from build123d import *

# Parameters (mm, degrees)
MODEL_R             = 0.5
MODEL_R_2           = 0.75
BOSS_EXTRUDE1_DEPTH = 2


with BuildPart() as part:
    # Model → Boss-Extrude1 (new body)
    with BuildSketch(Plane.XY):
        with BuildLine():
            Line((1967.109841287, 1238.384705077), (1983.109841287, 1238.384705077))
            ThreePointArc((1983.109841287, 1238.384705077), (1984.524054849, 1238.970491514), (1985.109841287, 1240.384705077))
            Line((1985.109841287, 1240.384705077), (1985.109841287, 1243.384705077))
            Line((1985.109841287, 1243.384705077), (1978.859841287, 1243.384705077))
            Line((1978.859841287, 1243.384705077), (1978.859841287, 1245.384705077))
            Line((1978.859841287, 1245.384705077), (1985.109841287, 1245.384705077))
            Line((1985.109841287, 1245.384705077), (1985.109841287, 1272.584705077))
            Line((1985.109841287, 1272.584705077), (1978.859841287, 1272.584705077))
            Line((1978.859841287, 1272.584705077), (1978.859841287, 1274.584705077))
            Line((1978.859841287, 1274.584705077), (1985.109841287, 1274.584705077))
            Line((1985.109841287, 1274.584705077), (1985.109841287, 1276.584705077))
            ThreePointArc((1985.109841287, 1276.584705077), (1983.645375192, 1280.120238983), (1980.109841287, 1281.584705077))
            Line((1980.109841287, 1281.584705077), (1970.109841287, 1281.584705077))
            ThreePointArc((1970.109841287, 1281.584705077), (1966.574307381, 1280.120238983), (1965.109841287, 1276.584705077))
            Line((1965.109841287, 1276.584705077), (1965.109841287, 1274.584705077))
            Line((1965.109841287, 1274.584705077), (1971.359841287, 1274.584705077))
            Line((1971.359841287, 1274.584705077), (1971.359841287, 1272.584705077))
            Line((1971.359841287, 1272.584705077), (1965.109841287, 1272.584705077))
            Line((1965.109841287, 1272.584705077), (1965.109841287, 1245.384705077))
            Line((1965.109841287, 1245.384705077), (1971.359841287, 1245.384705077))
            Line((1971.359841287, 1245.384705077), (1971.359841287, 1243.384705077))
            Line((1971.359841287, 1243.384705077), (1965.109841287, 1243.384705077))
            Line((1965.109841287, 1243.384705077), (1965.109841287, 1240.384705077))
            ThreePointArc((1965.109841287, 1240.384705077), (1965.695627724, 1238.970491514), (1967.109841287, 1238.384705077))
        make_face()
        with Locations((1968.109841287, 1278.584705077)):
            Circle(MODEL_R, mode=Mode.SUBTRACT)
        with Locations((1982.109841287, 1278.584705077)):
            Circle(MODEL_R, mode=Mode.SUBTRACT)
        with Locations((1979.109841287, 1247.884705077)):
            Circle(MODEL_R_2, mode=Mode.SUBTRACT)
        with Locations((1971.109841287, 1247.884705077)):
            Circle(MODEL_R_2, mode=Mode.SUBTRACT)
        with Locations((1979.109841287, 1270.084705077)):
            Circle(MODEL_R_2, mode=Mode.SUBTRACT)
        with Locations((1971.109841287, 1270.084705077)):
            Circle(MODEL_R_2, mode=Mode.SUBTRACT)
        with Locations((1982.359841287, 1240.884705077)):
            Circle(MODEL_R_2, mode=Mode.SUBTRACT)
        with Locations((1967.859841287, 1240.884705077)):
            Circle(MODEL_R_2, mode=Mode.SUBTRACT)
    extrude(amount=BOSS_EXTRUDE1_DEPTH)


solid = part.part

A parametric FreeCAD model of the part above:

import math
import FreeCAD as App
import Part
import Sketcher

V = App.Vector
Q = App.Units.Quantity

doc = App.newDocument("Part")
body = doc.addObject("PartDesign::Body", "Body")

sketch1 = doc.addObject("Sketcher::SketchObject", "Sketch")
body.addObject(sketch1)
sketch1.AttachmentSupport = (doc.XY_Plane, [""])
sketch1.MapMode = "FlatFace"
sketch1.addGeometry([
    Part.LineSegment(V(1967.1, 1238.4, 0), V(1983.1, 1238.4, 0)),
    Part.ArcOfCircle(Part.Circle(V(1983.1, 1240.4, 0), V(0, 0, 1), 2), math.radians(-90), math.radians(0)),
    Part.LineSegment(V(1985.1, 1240.4, 0), V(1985.1, 1243.4, 0)),
    Part.LineSegment(V(1985.1, 1243.4, 0), V(1978.9, 1243.4, 0)),
    Part.LineSegment(V(1978.9, 1243.4, 0), V(1978.9, 1245.4, 0)),
    Part.LineSegment(V(1978.9, 1245.4, 0), V(1985.1, 1245.4, 0)),
    Part.LineSegment(V(1985.1, 1245.4, 0), V(1985.1, 1272.6, 0)),
    Part.LineSegment(V(1985.1, 1272.6, 0), V(1978.9, 1272.6, 0)),
    Part.LineSegment(V(1978.9, 1272.6, 0), V(1978.9, 1274.6, 0)),
    Part.LineSegment(V(1978.9, 1274.6, 0), V(1985.1, 1274.6, 0)),
    Part.LineSegment(V(1985.1, 1274.6, 0), V(1985.1, 1276.6, 0)),
    Part.ArcOfCircle(Part.Circle(V(1980.1, 1276.6, 0), V(0, 0, 1), 5), math.radians(0), math.radians(90)),
    Part.LineSegment(V(1980.1, 1281.6, 0), V(1970.1, 1281.6, 0)),
    Part.ArcOfCircle(Part.Circle(V(1970.1, 1276.6, 0), V(0, 0, 1), 5), math.radians(90), math.radians(180)),
    Part.LineSegment(V(1965.1, 1276.6, 0), V(1965.1, 1274.6, 0)),
    Part.LineSegment(V(1965.1, 1274.6, 0), V(1971.4, 1274.6, 0)),
    Part.LineSegment(V(1971.4, 1274.6, 0), V(1971.4, 1272.6, 0)),
    Part.LineSegment(V(1971.4, 1272.6, 0), V(1965.1, 1272.6, 0)),
    Part.LineSegment(V(1965.1, 1272.6, 0), V(1965.1, 1245.4, 0)),
    Part.LineSegment(V(1965.1, 1245.4, 0), V(1971.4, 1245.4, 0)),
    Part.LineSegment(V(1971.4, 1245.4, 0), V(1971.4, 1243.4, 0)),
    Part.LineSegment(V(1971.4, 1243.4, 0), V(1965.1, 1243.4, 0)),
    Part.LineSegment(V(1965.1, 1243.4, 0), V(1965.1, 1240.4, 0)),
    Part.ArcOfCircle(Part.Circle(V(1967.1, 1240.4, 0), V(0, 0, 1), 2), math.radians(180), math.radians(270)),
    Part.Circle(V(1967.9, 1240.9, 0), V(0, 0, 1), 0.8),
    Part.Circle(V(1971.1, 1247.9, 0), V(0, 0, 1), 0.8),
    Part.Circle(V(1982.4, 1240.9, 0), V(0, 0, 1), 0.8),
    Part.Circle(V(1979.1, 1247.9, 0), V(0, 0, 1), 0.8),
    Part.Circle(V(1968.1, 1278.6, 0), V(0, 0, 1), 0.5),
    Part.Circle(V(1971.1, 1270.1, 0), V(0, 0, 1), 0.8),
    Part.Circle(V(1979.1, 1270.1, 0), V(0, 0, 1), 0.8),
    Part.Circle(V(1982.1, 1278.6, 0), V(0, 0, 1), 0.5),
], False)
sketch1.addConstraint([
    Sketcher.Constraint("Tangent", 0, 2, 1, 1),
    Sketcher.Constraint("Tangent", 1, 2, 2, 1),
    Sketcher.Constraint("Coincident", 2, 2, 3, 1),
    Sketcher.Constraint("Coincident", 3, 2, 4, 1),
    Sketcher.Constraint("Coincident", 4, 2, 5, 1),
    Sketcher.Constraint("Coincident", 5, 2, 6, 1),
    Sketcher.Constraint("Coincident", 6, 2, 7, 1),
    Sketcher.Constraint("Coincident", 7, 2, 8, 1),
    Sketcher.Constraint("Coincident", 8, 2, 9, 1),
    Sketcher.Constraint("Coincident", 9, 2, 10, 1),
    Sketcher.Constraint("Tangent", 10, 2, 11, 1),
    Sketcher.Constraint("Tangent", 11, 2, 12, 1),
    Sketcher.Constraint("Tangent", 12, 2, 13, 1),
    Sketcher.Constraint("Tangent", 13, 2, 14, 1),
    Sketcher.Constraint("Coincident", 14, 2, 15, 1),
    Sketcher.Constraint("Coincident", 15, 2, 16, 1),
    Sketcher.Constraint("Coincident", 16, 2, 17, 1),
    Sketcher.Constraint("Coincident", 17, 2, 18, 1),
    Sketcher.Constraint("Coincident", 18, 2, 19, 1),
    Sketcher.Constraint("Coincident", 19, 2, 20, 1),
    Sketcher.Constraint("Coincident", 20, 2, 21, 1),
    Sketcher.Constraint("Coincident", 21, 2, 22, 1),
    Sketcher.Constraint("Tangent", 22, 2, 23, 1),
    Sketcher.Constraint("Tangent", 23, 2, 0, 1),
    Sketcher.Constraint("Horizontal", 0),
    Sketcher.Constraint("Vertical", 2),
    Sketcher.Constraint("Horizontal", 3),
    Sketcher.Constraint("Vertical", 4),
    Sketcher.Constraint("Horizontal", 5),
    Sketcher.Constraint("Vertical", 6),
    Sketcher.Constraint("Horizontal", 7),
    Sketcher.Constraint("Vertical", 8),
    Sketcher.Constraint("Horizontal", 9),
    Sketcher.Constraint("Vertical", 10),
    Sketcher.Constraint("Horizontal", 12),
    Sketcher.Constraint("Vertical", 14),
    Sketcher.Constraint("Horizontal", 15),
    Sketcher.Constraint("Vertical", 16),
    Sketcher.Constraint("Horizontal", 17),
    Sketcher.Constraint("Vertical", 18),
    Sketcher.Constraint("Horizontal", 19),
    Sketcher.Constraint("Vertical", 20),
    Sketcher.Constraint("Horizontal", 21),
    Sketcher.Constraint("Vertical", 22),
    Sketcher.Constraint("Equal", 11, 13),
    Sketcher.Constraint("Equal", 1, 23),
    Sketcher.Constraint("Equal", 24, 25),
    Sketcher.Constraint("Equal", 25, 26),
    Sketcher.Constraint("Equal", 26, 27),
    Sketcher.Constraint("Equal", 27, 29),
    Sketcher.Constraint("Equal", 29, 30),
    Sketcher.Constraint("Equal", 28, 31),
    Sketcher.Constraint("Horizontal", 24, 3, 26, 3),
    Sketcher.Constraint("Horizontal", 25, 3, 27, 3),
    Sketcher.Constraint("Horizontal", 29, 3, 30, 3),
    Sketcher.Constraint("Horizontal", 28, 3, 31, 3),
    Sketcher.Constraint("Horizontal", 9, 2, 14, 2),
    Sketcher.Constraint("Horizontal", 7, 2, 16, 2),
    Sketcher.Constraint("Horizontal", 5, 2, 18, 2),
    Sketcher.Constraint("Horizontal", 3, 2, 20, 2),
    Sketcher.Constraint("Vertical", 25, 3, 29, 3),
    Sketcher.Constraint("Vertical", 27, 3, 30, 3),
    Sketcher.Constraint("Vertical", 2, 2, 5, 2),
    Sketcher.Constraint("Vertical", 4, 2, 7, 2),
    Sketcher.Constraint("Vertical", 6, 2, 9, 2),
    Sketcher.Constraint("Vertical", 14, 2, 17, 2),
    Sketcher.Constraint("Vertical", 16, 2, 19, 2),
    Sketcher.Constraint("Vertical", 18, 2, 21, 2),
    Sketcher.Constraint("Equal", 9, 15),
    Sketcher.Constraint("Equal", 4, 8),
    Sketcher.Constraint("Equal", 8, 10),
    Sketcher.Constraint("Diameter", 28, Q("1 mm")),
    Sketcher.Constraint("Radius", 1, Q("2 mm")),
    Sketcher.Constraint("Radius", 11, Q("5 mm")),
    Sketcher.Constraint("Diameter", 24, Q("1.5 mm")),
    Sketcher.Constraint("DistanceX", 0, 1, 0, 2, Q("16 mm")),
    Sketcher.Constraint("DistanceY", 2, 1, 2, 2, Q("3 mm")),
    Sketcher.Constraint("DistanceY", 4, 1, 4, 2, Q("2 mm")),
    Sketcher.Constraint("DistanceY", 6, 1, 6, 2, Q("27.2 mm")),
    Sketcher.Constraint("DistanceY", 24, 3, 25, 3, Q("7 mm")),
    Sketcher.Constraint("DistanceX", 23, 3, 25, 3, Q("4 mm")),
    Sketcher.Constraint("DistanceX", 25, 3, 27, 3, Q("8 mm")),
    Sketcher.Constraint("DistanceX", 28, 3, 13, 3, Q("2 mm")),
    Sketcher.Constraint("DistanceY", 13, 3, 28, 3, Q("2 mm")),
    Sketcher.Constraint("DistanceX", 11, 3, 31, 3, Q("2 mm")),
    Sketcher.Constraint("DistanceX", 3, 2, 3, 1, Q("6.25 mm")),
    Sketcher.Constraint("DistanceY", 23, 3, 24, 3, Q("0.5 mm")),
    Sketcher.Constraint("DistanceX", 24, 3, 26, 3, Q("14.5 mm")),
    Sketcher.Constraint("DistanceY", 29, 3, 13, 3, Q("6.5 mm")),
    Sketcher.Constraint("DistanceX", 3, 2, 26, 3, Q("3.5 mm")),
    Sketcher.Constraint("DistanceX", -1, 1, 1, 3, Q("1983.109841 mm")),
    Sketcher.Constraint("DistanceY", -1, 1, 1, 3, Q("1240.384705 mm")),
])
pad1 = doc.addObject("PartDesign::Pad", "Pad")
body.addObject(pad1)
pad1.Profile = sketch1
pad1.Length = 2

doc.recompute()
